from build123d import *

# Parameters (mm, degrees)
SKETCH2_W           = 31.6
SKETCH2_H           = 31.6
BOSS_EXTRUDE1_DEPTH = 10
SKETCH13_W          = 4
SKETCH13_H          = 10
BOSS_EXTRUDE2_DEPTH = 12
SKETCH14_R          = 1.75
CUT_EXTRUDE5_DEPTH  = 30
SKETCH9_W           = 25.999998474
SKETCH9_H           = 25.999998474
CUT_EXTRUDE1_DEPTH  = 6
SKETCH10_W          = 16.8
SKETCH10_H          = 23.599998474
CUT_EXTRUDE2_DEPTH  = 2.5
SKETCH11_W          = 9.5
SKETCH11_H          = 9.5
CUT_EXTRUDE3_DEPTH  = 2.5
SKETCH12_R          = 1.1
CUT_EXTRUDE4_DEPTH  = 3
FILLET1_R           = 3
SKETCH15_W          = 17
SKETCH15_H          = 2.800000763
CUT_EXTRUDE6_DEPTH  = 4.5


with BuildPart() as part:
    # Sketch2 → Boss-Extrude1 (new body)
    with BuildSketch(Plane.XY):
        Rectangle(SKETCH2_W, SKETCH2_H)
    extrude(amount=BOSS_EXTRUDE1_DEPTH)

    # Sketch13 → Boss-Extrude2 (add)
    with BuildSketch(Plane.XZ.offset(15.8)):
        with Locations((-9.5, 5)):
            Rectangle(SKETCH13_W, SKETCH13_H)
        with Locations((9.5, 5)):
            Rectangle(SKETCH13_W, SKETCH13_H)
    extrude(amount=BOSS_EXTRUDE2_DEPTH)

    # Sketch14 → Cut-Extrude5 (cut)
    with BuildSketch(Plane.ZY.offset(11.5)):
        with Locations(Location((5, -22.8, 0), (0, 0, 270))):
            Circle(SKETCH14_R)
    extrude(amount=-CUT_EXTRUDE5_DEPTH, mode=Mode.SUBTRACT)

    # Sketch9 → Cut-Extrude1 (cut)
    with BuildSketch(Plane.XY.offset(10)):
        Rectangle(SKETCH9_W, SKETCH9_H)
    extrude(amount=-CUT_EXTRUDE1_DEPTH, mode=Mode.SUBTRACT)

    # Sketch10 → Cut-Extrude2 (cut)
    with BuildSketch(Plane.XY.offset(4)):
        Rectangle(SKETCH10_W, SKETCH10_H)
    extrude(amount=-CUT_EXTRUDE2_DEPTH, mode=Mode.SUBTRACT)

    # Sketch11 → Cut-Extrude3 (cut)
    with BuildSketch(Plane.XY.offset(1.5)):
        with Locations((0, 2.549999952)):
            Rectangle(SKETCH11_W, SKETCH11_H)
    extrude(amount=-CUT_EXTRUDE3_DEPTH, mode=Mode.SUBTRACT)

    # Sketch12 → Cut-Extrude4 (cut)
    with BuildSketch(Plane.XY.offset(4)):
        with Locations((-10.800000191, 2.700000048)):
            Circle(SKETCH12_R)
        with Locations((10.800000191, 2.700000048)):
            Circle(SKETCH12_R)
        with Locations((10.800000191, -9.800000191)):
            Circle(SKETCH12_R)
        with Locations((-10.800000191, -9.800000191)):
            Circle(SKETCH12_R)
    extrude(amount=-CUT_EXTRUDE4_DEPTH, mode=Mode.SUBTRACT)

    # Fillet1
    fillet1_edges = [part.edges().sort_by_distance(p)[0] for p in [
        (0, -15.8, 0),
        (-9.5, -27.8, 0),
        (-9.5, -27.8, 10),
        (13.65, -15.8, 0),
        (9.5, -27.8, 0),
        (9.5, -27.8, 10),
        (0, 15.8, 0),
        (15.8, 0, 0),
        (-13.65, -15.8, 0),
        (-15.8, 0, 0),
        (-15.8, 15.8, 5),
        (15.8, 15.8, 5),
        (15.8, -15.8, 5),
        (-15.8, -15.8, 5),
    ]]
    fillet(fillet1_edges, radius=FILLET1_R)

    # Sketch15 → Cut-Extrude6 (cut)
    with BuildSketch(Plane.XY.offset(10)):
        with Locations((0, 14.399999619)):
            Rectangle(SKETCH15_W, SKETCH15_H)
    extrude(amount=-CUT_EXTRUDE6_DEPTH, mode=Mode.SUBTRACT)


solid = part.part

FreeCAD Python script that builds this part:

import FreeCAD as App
import Part
import Sketcher
Q = App.Units.Quantity


def edges_at(feature, points):
    """Names of the edges that pass closest to the given points."""
    edges = feature.Shape.Edges
    near = lambda p: min(range(len(edges)), key=lambda i: edges[i].distToShape(Part.Vertex(*p))[0])
    return sorted({f"Edge{near(p) + 1}" for p in points})

doc = App.newDocument("Part")
body = doc.addObject("PartDesign::Body", "Body")

# Sketch on XY plane
sketch1 = body.newObject("Sketcher::SketchObject", "Sketch")
sketch1.AttachmentSupport = (doc.getObject("XY_Plane"), [""])
sketch1.MapMode = "FlatFace"
sketch1.addGeometry(Part.LineSegment(App.Vector(-16, 16, 0), App.Vector(-16, -16, 0)), False)
sketch1.addGeometry(Part.LineSegment(App.Vector(-16, -16, 0), App.Vector(16, -16, 0)), False)
sketch1.addGeometry(Part.LineSegment(App.Vector(16, -16, 0), App.Vector(16, 16, 0)), False)
sketch1.addGeometry(Part.LineSegment(App.Vector(16, 16, 0), App.Vector(-16, 16, 0)), False)
sketch1.addConstraint(Sketcher.Constraint("Coincident", 0, 2, 1, 1))
sketch1.addConstraint(Sketcher.Constraint("Coincident", 1, 2, 2, 1))
sketch1.addConstraint(Sketcher.Constraint("Coincident", 2, 2, 3, 1))
sketch1.addConstraint(Sketcher.Constraint("Coincident", 3, 2, 0, 1))
sketch1.addConstraint(Sketcher.Constraint("Vertical", 0))
sketch1.addConstraint(Sketcher.Constraint("Horizontal", 1))
sketch1.addConstraint(Sketcher.Constraint("Vertical", 2))
sketch1.addConstraint(Sketcher.Constraint("Horizontal", 3))
sketch1.addConstraint(Sketcher.Constraint("Symmetric", 0, 2, 2, 2, -1, 1))
sketch1.addConstraint(Sketcher.Constraint("Equal", 3, 0))
sketch1.addConstraint(Sketcher.Constraint("DistanceX", 1, 1, 1, 2, Q("31.6 mm")))
pad1 = body.newObject("PartDesign::Pad", "Pad")
pad1.Profile = sketch1
pad1.Length = 10

# Sketch on XZ plane
sketch2 = body.newObject("Sketcher::SketchObject", "Sketch001")
sketch2.AttachmentSupport = (doc.getObject("XZ_Plane"), [""])
sketch2.MapMode = "FlatFace"
sketch2.AttachmentOffset = App.Placement(App.Vector(0, 0, 15.8), App.Rotation())
sketch2.addGeometry(Part.LineSegment(App.Vector(-11.5, 10, 0), App.Vector(-11.5, 0, 0)), False)
sketch2.addGeometry(Part.LineSegment(App.Vector(-11.5, 0, 0), App.Vector(-7.5, 0, 0)), False)
sketch2.addGeometry(Part.LineSegment(App.Vector(-7.5, 0, 0), App.Vector(-7.5, 10, 0)), False)
sketch2.addGeometry(Part.LineSegment(App.Vector(-7.5, 10, 0), App.Vector(-11.5, 10, 0)), False)
sketch2.addGeometry(Part.LineSegment(App.Vector(7.5, 10, 0), App.Vector(7.5, 0, 0)), False)
sketch2.addGeometry(Part.LineSegment(App.Vector(7.5, 0, 0), App.Vector(11.5, 0, 0)), False)
sketch2.addGeometry(Part.LineSegment(App.Vector(11.5, 0, 0), App.Vector(11.5, 10, 0)), False)
sketch2.addGeometry(Part.LineSegment(App.Vector(11.5, 10, 0), App.Vector(7.5, 10, 0)), False)
sketch2.addConstraint(Sketcher.Constraint("Coincident", 0, 2, 1, 1))
sketch2.addConstraint(Sketcher.Constraint("Coincident", 1, 2, 2, 1))
sketch2.addConstraint(Sketcher.Constraint("Coincident", 2, 2, 3, 1))
sketch2.addConstraint(Sketcher.Constraint("Coincident", 3, 2, 0, 1))
sketch2.addConstraint(Sketcher.Constraint("Coincident", 4, 2, 5, 1))
sketch2.addConstraint(Sketcher.Constraint("Coincident", 5, 2, 6, 1))
sketch2.addConstraint(Sketcher.Constraint("Coincident", 6, 2, 7, 1))
sketch2.addConstraint(Sketcher.Constraint("Coincident", 7, 2, 4, 1))
sketch2.addConstraint(Sketcher.Constraint("Vertical", 0))
sketch2.addConstraint(Sketcher.Constraint("Horizontal", 1))
sketch2.addConstraint(Sketcher.Constraint("Vertical", 2))
sketch2.addConstraint(Sketcher.Constraint("Horizontal", 3))
sketch2.addConstraint(Sketcher.Constraint("Vertical", 4))
sketch2.addConstraint(Sketcher.Constraint("Horizontal", 5))
sketch2.addConstraint(Sketcher.Constraint("Vertical", 6))
sketch2.addConstraint(Sketcher.Constraint("Horizontal", 7))
sketch2.addConstraint(Sketcher.Constraint("Symmetric", 1, 2, 4, 2, -1, 1))
sketch2.addConstraint(Sketcher.Constraint("Symmetric", 0, 2, 5, 2, -2))
sketch2.addConstraint(Sketcher.Constraint("Horizontal", 3, 2, 6, 2))
sketch2.addConstraint(Sketcher.Constraint("DistanceX", 1, 1, 1, 2, Q("4 mm")))
sketch2.addConstraint(Sketcher.Constraint("DistanceY", 0, 2, 0, 1, Q("10 mm")))
sketch2.addConstraint(Sketcher.Constraint("DistanceX", 1, 2, 4, 2, Q("15 mm")))
pad2 = body.newObject("PartDesign::Pad", "Pad001")
pad2.Profile = sketch2
pad2.Length = 12

# Sketch on YZ plane
sketch3 = body.newObject("Sketcher::SketchObject", "Sketch002")
sketch3.AttachmentSupport = (doc.getObject("YZ_Plane"), [""])
sketch3.MapMode = "FlatFace"
sketch3.AttachmentOffset = App.Placement(App.Vector(0, 0, -11.5), App.Rotation())
sketch3.addGeometry(Part.Circle(App.Vector(-22.8, 5, 0), App.Vector(0, 0, 1), 1.8), False)
sketch3.addConstraint(Sketcher.Constraint("Diameter", 0, Q("3.5 mm")))
sketch3.addConstraint(Sketcher.Constraint("DistanceY", -1, 1, 0, 3, Q("5 mm")))
sketch3.addConstraint(Sketcher.Constraint("DistanceX", 0, 3, -1, 1, Q("22.8 mm")))
pocket1 = body.newObject("PartDesign::Pocket", "Pocket")
pocket1.Profile = sketch3
pocket1.Length = 30
pocket1.Reversed = True

# Sketch on XY plane
sketch4 = body.newObject("Sketcher::SketchObject", "Sketch003")
sketch4.AttachmentSupport = (doc.getObject("XY_Plane"), [""])
sketch4.MapMode = "FlatFace"
sketch4.AttachmentOffset = App.Placement(App.Vector(0, 0, 10), App.Rotation())
sketch4.addGeometry(Part.LineSegment(App.Vector(-13, 13, 0), App.Vector(-13, -13, 0)), False)
sketch4.addGeometry(Part.LineSegment(App.Vector(-13, -13, 0), App.Vector(13, -13, 0)), False)
sketch4.addGeometry(Part.LineSegment(App.Vector(13, -13, 0), App.Vector(13, 13, 0)), False)
sketch4.addGeometry(Part.LineSegment(App.Vector(13, 13, 0), App.Vector(-13, 13, 0)), False)
sketch4.addConstraint(Sketcher.Constraint("Coincident", 0, 2, 1, 1))
sketch4.addConstraint(Sketcher.Constraint("Coincident", 1, 2, 2, 1))
sketch4.addConstraint(Sketcher.Constraint("Coincident", 2, 2, 3, 1))
sketch4.addConstraint(Sketcher.Constraint("Coincident", 3, 2, 0, 1))
sketch4.addConstraint(Sketcher.Constraint("Vertical", 0))
sketch4.addConstraint(Sketcher.Constraint("Horizontal", 1))
sketch4.addConstraint(Sketcher.Constraint("Vertical", 2))
sketch4.addConstraint(Sketcher.Constraint("Horizontal", 3))
sketch4.addConstraint(Sketcher.Constraint("Symmetric", 0, 2, 2, 2, -1, 1))
sketch4.addConstraint(Sketcher.Constraint("Equal", 3, 0))
sketch4.addConstraint(Sketcher.Constraint("DistanceX", 1, 1, 1, 2, Q("25.999998 mm")))
pocket2 = body.newObject("PartDesign::Pocket", "Pocket001")
pocket2.Profile = sketch4
pocket2.Length = 6

# Sketch on XY plane
sketch5 = body.newObject("Sketcher::SketchObject", "Sketch004")
sketch5.AttachmentSupport = (doc.getObject("XY_Plane"), [""])
sketch5.MapMode = "FlatFace"
sketch5.AttachmentOffset = App.Placement(App.Vector(0, 0, 4), App.Rotation())
sketch5.addGeometry(Part.LineSegment(App.Vector(-8, 12, 0), App.Vector(-8, -12, 0)), False)
sketch5.addGeometry(Part.LineSegment(App.Vector(-8, -12, 0), App.Vector(8, -12, 0)), False)
sketch5.addGeometry(Part.LineSegment(App.Vector(8, -12, 0), App.Vector(8, 12, 0)), False)
sketch5.addGeometry(Part.LineSegment(App.Vector(8, 12, 0), App.Vector(-8, 12, 0)), False)
sketch5.addConstraint(Sketcher.Constraint("Coincident", 0, 2, 1, 1))
sketch5.addConstraint(Sketcher.Constraint("Coincident", 1, 2, 2, 1))
sketch5.addConstraint(Sketcher.Constraint("Coincident", 2, 2, 3, 1))
sketch5.addConstraint(Sketcher.Constraint("Coincident", 3, 2, 0, 1))
sketch5.addConstraint(Sketcher.Constraint("Vertical", 0))
sketch5.addConstraint(Sketcher.Constraint("Horizontal", 1))
sketch5.addConstraint(Sketcher.Constraint("Vertical", 2))
sketch5.addConstraint(Sketcher.Constraint("Horizontal", 3))
sketch5.addConstraint(Sketcher.Constraint("Symmetric", 0, 2, 2, 2, -1, 1))
sketch5.addConstraint(Sketcher.Constraint("DistanceX", 1, 1, 1, 2, Q("16.8 mm")))
sketch5.addConstraint(Sketcher.Constraint("DistanceY", 0, 2, 0, 1, Q("23.599998 mm")))
pocket3 = body.newObject("PartDesign::Pocket", "Pocket002")
pocket3.Profile = sketch5
pocket3.Length = 2.5

# Sketch on XY plane
sketch6 = body.newObject("Sketcher::SketchObject", "Sketch005")
sketch6.AttachmentSupport = (doc.getObject("XY_Plane"), [""])
sketch6.MapMode = "FlatFace"
sketch6.AttachmentOffset = App.Placement(App.Vector(0, 0, 1.5), App.Rotation())
sketch6.addGeometry(Part.LineSegment(App.Vector(-5, 7, 0), App.Vector(-5, -2, 0)), False)
sketch6.addGeometry(Part.LineSegment(App.Vector(-5, -2, 0), App.Vector(5, -2, 0)), False)
sketch6.addGeometry(Part.LineSegment(App.Vector(5, -2, 0), App.Vector(5, 7, 0)), False)
sketch6.addGeometry(Part.LineSegment(App.Vector(5, 7, 0), App.Vector(-5, 7, 0)), False)
sketch6.addConstraint(Sketcher.Constraint("Coincident", 0, 2, 1, 1))
sketch6.addConstraint(Sketcher.Constraint("Coincident", 1, 2, 2, 1))
sketch6.addConstraint(Sketcher.Constraint("Coincident", 2, 2, 3, 1))
sketch6.addConstraint(Sketcher.Constraint("Coincident", 3, 2, 0, 1))
sketch6.addConstraint(Sketcher.Constraint("Vertical", 0))
sketch6.addConstraint(Sketcher.Constraint("Horizontal", 1))
sketch6.addConstraint(Sketcher.Constraint("Vertical", 2))
sketch6.addConstraint(Sketcher.Constraint("Horizontal", 3))
sketch6.addConstraint(Sketcher.Constraint("Equal", 3, 0))
sketch6.addConstraint(Sketcher.Constraint("DistanceX", 1, 1, 1, 2, Q("9.5 mm")))
sketch6.addConstraint(Sketcher.Constraint("DistanceY", 0, 2, -1, 1, Q("2.2 mm")))
sketch6.addConstraint(Sketcher.Constraint("DistanceX", 0, 2, -1, 1, Q("4.75 mm")))
pocket4 = body.newObject("PartDesign::Pocket", "Pocket003")
pocket4.Profile = sketch6
pocket4.Length = 2.5

# Sketch on XY plane
sketch7 = body.newObject("Sketcher::SketchObject", "Sketch006")
sketch7.AttachmentSupport = (doc.getObject("XY_Plane"), [""])
sketch7.MapMode = "FlatFace"
sketch7.AttachmentOffset = App.Placement(App.Vector(0, 0, 4), App.Rotation())
sketch7.addGeometry(Part.Circle(App.Vector(-10.8, 2.7, 0), App.Vector(0, 0, 1), 1.1), False)
sketch7.addGeometry(Part.Circle(App.Vector(10.8, 2.7, 0), App.Vector(0, 0, 1), 1.1), False)
sketch7.addGeometry(Part.Circle(App.Vector(10.8, -9.8, 0), App.Vector(0, 0, 1), 1.1), False)
sketch7.addGeometry(Part.Circle(App.Vector(-10.8, -9.8, 0), App.Vector(0, 0, 1), 1.1), False)
sketch7.addConstraint(Sketcher.Constraint("Equal", 0, 1))
sketch7.addConstraint(Sketcher.Constraint("Equal", 1, 2))
sketch7.addConstraint(Sketcher.Constraint("Equal", 2, 3))
sketch7.addConstraint(Sketcher.Constraint("Symmetric", 0, 3, 1, 3, -2))
sketch7.addConstraint(Sketcher.Constraint("Symmetric", 2, 3, 3, 3, -2))
sketch7.addConstraint(Sketcher.Constraint("Vertical", 1, 3, 2, 3))
sketch7.addConstraint(Sketcher.Constraint("Diameter", 0, Q("2.2 mm")))
sketch7.addConstraint(Sketcher.Constraint("DistanceX", 0, 3, -1, 1, Q("10.8 mm")))
sketch7.addConstraint(Sketcher.Constraint("DistanceY", -1, 1, 0, 3, Q("2.7 mm")))
sketch7.addConstraint(Sketcher.Constraint("DistanceY", 2, 3, -1, 1, Q("9.8 mm")))
pocket5 = body.newObject("PartDesign::Pocket", "Pocket004")
pocket5.Profile = sketch7
pocket5.Length = 3
doc.recompute()

fillet = body.newObject("PartDesign::Fillet", "Fillet")
fillet.Base = (pocket5, edges_at(pocket5, [
    (0, -15.8, 0),
    (-9.5, -27.8, 0),
    (-9.5, -27.8, 10),
    (13.65, -15.8, 0),
    (9.5, -27.8, 0),
    (9.5, -27.8, 10),
    (0, 15.8, 0),
    (15.8, 0, 0),
    (-13.65, -15.8, 0),
    (-15.8, 0, 0),
    (-15.8, 15.8, 5),
    (15.8, 15.8, 5),
    (15.8, -15.8, 5),
    (-15.8, -15.8, 5),
]))
fillet.Radius = 3

# Sketch on XY plane
sketch8 = body.newObject("Sketcher::SketchObject", "Sketch007")
sketch8.AttachmentSupport = (doc.getObject("XY_Plane"), [""])
sketch8.MapMode = "FlatFace"
sketch8.AttachmentOffset = App.Placement(App.Vector(0, 0, 10), App.Rotation())
sketch8.addGeometry(Part.LineSegment(App.Vector(-8.5, 15.8, 0), App.Vector(-8.5, 13, 0)), False)
sketch8.addGeometry(Part.LineSegment(App.Vector(-8.5, 13, 0), App.Vector(8.5, 13, 0)), False)
sketch8.addGeometry(Part.LineSegment(App.Vector(8.5, 13, 0), App.Vector(8.5, 15.8, 0)), False)
sketch8.addGeometry(Part.LineSegment(App.Vector(8.5, 15.8, 0), App.Vector(-8.5, 15.8, 0)), False)
sketch8.addConstraint(Sketcher.Constraint("Coincident", 0, 2, 1, 1))
sketch8.addConstraint(Sketcher.Constraint("Coincident", 1, 2, 2, 1))
sketch8.addConstraint(Sketcher.Constraint("Coincident", 2, 2, 3, 1))
sketch8.addConstraint(Sketcher.Constraint("Coincident", 3, 2, 0, 1))
sketch8.addConstraint(Sketcher.Constraint("Vertical", 0))
sketch8.addConstraint(Sketcher.Constraint("Horizontal", 1))
sketch8.addConstraint(Sketcher.Constraint("Vertical", 2))
sketch8.addConstraint(Sketcher.Constraint("Horizontal", 3))
sketch8.addConstraint(Sketcher.Constraint("DistanceX", 1, 1, 1, 2, Q("17 mm")))
sketch8.addConstraint(Sketcher.Constraint("DistanceY", 0, 2, 0, 1, Q("2.800001 mm")))
sketch8.addConstraint(Sketcher.Constraint("DistanceY", -1, 1, 0, 2, Q("12.999999 mm")))
sketch8.addConstraint(Sketcher.Constraint("DistanceX", 0, 2, -1, 1, Q("8.5 mm")))
pocket6 = body.newObject("PartDesign::Pocket", "Pocket005")
pocket6.Profile = sketch8
pocket6.Length = 4.5

doc.recompute()
